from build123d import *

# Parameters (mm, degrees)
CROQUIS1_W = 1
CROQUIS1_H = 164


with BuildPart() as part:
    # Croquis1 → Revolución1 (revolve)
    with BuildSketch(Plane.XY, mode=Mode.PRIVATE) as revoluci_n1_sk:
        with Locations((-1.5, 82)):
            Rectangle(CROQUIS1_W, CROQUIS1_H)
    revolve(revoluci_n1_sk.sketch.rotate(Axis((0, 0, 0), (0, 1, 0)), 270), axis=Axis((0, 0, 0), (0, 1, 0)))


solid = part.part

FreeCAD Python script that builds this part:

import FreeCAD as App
import Part
import Sketcher

V = App.Vector

doc = App.newDocument("Part")
body = doc.addObject("PartDesign::Body", "Body")

sketch1 = body.newObject("Sketcher::SketchObject", "Sketch")
sketch1.AttachmentSupport = (doc.getObject("XY_Plane"), [""])
sketch1.MapMode = "FlatFace"
sketch1.addGeometry([
    Part.LineSegment(V(-2, 164, 0), V(-2, 0, 0)),
    Part.LineSegment(V(-2, 0, 0), V(-1, 0, 0)),
    Part.LineSegment(V(-1, 0, 0), V(-1, 164, 0)),
    Part.LineSegment(V(-1, 164, 0), V(-2, 164, 0)),
], False)
sketch1.addConstraint([
    Sketcher.Constraint("Coincident", 0, 2, 1, 1),
    Sketcher.Constraint("Coincident", 1, 2, 2, 1),
    Sketcher.Constraint("Coincident", 2, 2, 3, 1),
    Sketcher.Constraint("Coincident", 3, 2, 0, 1),
    Sketcher.Constraint("Vertical", 0),
    Sketcher.Constraint("Horizontal", 1),
    Sketcher.Constraint("Vertical", 2),
    Sketcher.Constraint("Horizontal", 3),
    Sketcher.Constraint("PointOnObject", 0, 2, -1),
    Sketcher.Constraint("DistanceX", 1, 1, 1, 2, 1.0),
    Sketcher.Constraint("DistanceY", 0, 2, 0, 1, 164.0),
    Sketcher.Constraint("DistanceX", 0, 2, -1, 1, 2.0),
])
revolution = body.newObject("PartDesign::Revolution", "Revolution")
revolution.Profile = sketch1
revolution.ReferenceAxis = (sketch1, ["V_Axis"])
revolution.Angle = 360

doc.recompute()
